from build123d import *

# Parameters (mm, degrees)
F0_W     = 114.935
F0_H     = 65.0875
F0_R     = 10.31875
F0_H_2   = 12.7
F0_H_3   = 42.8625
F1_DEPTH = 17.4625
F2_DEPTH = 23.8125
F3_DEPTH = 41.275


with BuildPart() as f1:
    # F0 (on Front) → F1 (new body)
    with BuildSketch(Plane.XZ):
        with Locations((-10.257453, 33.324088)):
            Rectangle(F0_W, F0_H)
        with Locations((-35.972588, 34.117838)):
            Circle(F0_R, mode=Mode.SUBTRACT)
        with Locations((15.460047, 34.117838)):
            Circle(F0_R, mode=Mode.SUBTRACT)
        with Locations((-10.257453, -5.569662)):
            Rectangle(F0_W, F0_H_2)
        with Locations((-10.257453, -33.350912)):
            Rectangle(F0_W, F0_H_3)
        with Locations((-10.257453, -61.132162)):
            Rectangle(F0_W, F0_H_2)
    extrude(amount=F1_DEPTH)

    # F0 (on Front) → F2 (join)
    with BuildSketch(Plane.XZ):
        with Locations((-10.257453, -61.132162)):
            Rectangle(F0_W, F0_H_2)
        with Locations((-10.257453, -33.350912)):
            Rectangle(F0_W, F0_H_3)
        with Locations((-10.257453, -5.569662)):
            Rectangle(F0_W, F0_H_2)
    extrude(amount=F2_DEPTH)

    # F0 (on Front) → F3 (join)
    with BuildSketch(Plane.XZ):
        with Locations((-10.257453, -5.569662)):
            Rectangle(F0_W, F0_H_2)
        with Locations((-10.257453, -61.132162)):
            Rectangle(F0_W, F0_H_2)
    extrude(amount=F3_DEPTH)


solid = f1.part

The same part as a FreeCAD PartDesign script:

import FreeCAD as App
import Part
import Sketcher

V = App.Vector
Q = App.Units.Quantity


def add_polygon(sketch, points):
    """Adds a closed chain of lines whose ends are joined by coincident constraints."""
    first, n = sketch.GeometryCount, len(points)
    for a, b in zip(points, points[1:] + points[:1]):
        sketch.addGeometry(Part.LineSegment(App.Vector(*a, 0), App.Vector(*b, 0)), False)
    for i in range(n):
        sketch.addConstraint(Sketcher.Constraint("Coincident", first + i, 2, first + (i + 1) % n, 1))

doc = App.newDocument("Part")
body = doc.addObject("PartDesign::Body", "Body")

sketch1 = body.newObject("Sketcher::SketchObject", "Sketch")
sketch1.AttachmentSupport = (doc.getObject("XZ_Plane"), [""])
sketch1.MapMode = "FlatFace"
add_polygon(sketch1, [(-67.724953, 65.867838), (-67.724953, -67.482162), (47.210047, -67.482162), (47.210047, 65.867838)])
sketch1.addGeometry(Part.Circle(V(-35.972588, 34.117838, 0), V(0, 0, 1), 10.31875), False)
sketch1.addGeometry(Part.Circle(V(15.460047, 34.117838, 0), V(0, 0, 1), 10.31875), False)
sketch1.addConstraint([
    Sketcher.Constraint("Vertical", 0),
    Sketcher.Constraint("Horizontal", 1),
    Sketcher.Constraint("Vertical", 2),
    Sketcher.Constraint("Horizontal", 3),
    Sketcher.Constraint("Equal", 4, 5),
    Sketcher.Constraint("Horizontal", 4, 3, 5, 3),
    Sketcher.Constraint("Diameter", 4, Q("0.8125 in")),
    Sketcher.Constraint("DistanceY", 0, 2, 4, 3, Q("4 in")),
    Sketcher.Constraint("DistanceY", 0, 2, 0, 1, Q("5.25 in")),
    Sketcher.Constraint("DistanceX", 1, 1, 1, 2, Q("4.525 in")),
    Sketcher.Constraint("DistanceX", 5, 3, 1, 2, Q("1.25 in")),
    Sketcher.Constraint("DistanceX", 4, 3, -1, 1, Q("35.972588 mm")),
    Sketcher.Constraint("DistanceY", -1, 1, 2, 2, Q("65.867838 mm")),
    Sketcher.Constraint("DistanceX", -1, 1, 5, 3, Q("15.460047 mm")),
])
pad1 = body.newObject("PartDesign::Pad", "Pad")
pad1.Profile = sketch1
pad1.Length = Q("0.6875 in")

sketch2 = body.newObject("Sketcher::SketchObject", "Sketch001")
sketch2.AttachmentSupport = (doc.getObject("XZ_Plane"), [""])
sketch2.MapMode = "FlatFace"
add_polygon(sketch2, [(-67.724953, -67.482162), (47.210047, -67.482162), (47.210047, 0.780338), (-67.724953, 0.780338)])
sketch2.addConstraint([
    Sketcher.Constraint("Horizontal", 0),
    Sketcher.Constraint("Vertical", 1),
    Sketcher.Constraint("Horizontal", 2),
    Sketcher.Constraint("Vertical", 3),
    Sketcher.Constraint("DistanceX", 0, 1, 0, 2, Q("4.525 in")),
    Sketcher.Constraint("DistanceY", 1, 1, 1, 2, Q("2.6875 in")),
    Sketcher.Constraint("DistanceX", -1, 1, 0, 2, Q("47.210047 mm")),
    Sketcher.Constraint("DistanceY", 0, 2, -1, 1, Q("67.482162 mm")),
])
pad2 = body.newObject("PartDesign::Pad", "Pad001")
pad2.Profile = sketch2
pad2.Length = Q("0.9375 in")

sketch3 = body.newObject("Sketcher::SketchObject", "Sketch002")
sketch3.AttachmentSupport = (doc.getObject("XZ_Plane"), [""])
sketch3.MapMode = "FlatFace"
add_polygon(sketch3, [(-67.724953, 0.780338), (-67.724953, -11.919662), (47.210047, -11.919662), (47.210047, 0.780338)])
add_polygon(sketch3, [(-67.724953, -54.782162), (-67.724953, -67.482162), (47.210047, -67.482162), (47.210047, -54.782162)])
sketch3.addConstraint([
    Sketcher.Constraint("Vertical", 0),
    Sketcher.Constraint("Horizontal", 1),
    Sketcher.Constraint("Vertical", 2),
    Sketcher.Constraint("Horizontal", 3),
    Sketcher.Constraint("Vertical", 4),
    Sketcher.Constraint("Horizontal", 5),
    Sketcher.Constraint("Vertical", 6),
    Sketcher.Constraint("Horizontal", 7),
    Sketcher.Constraint("Vertical", 3, 2, 4, 2),
    Sketcher.Constraint("Vertical", 2, 2, 5, 2),
    Sketcher.Constraint("Equal", 2, 4),
    Sketcher.Constraint("DistanceY", 0, 2, 0, 1, Q("0.5 in")),
    Sketcher.Constraint("DistanceX", 1, 1, 1, 2, Q("4.525 in")),
    Sketcher.Constraint("DistanceY", 4, 2, 0, 2, Q("2.1875 in")),
    Sketcher.Constraint("DistanceX", 0, 2, -1, 1, Q("67.724953 mm")),
    Sketcher.Constraint("DistanceY", 0, 2, -1, 1, Q("11.919662 mm")),
])
pad3 = body.newObject("PartDesign::Pad", "Pad002")
pad3.Profile = sketch3
pad3.Length = Q("1.625 in")

doc.recompute()
